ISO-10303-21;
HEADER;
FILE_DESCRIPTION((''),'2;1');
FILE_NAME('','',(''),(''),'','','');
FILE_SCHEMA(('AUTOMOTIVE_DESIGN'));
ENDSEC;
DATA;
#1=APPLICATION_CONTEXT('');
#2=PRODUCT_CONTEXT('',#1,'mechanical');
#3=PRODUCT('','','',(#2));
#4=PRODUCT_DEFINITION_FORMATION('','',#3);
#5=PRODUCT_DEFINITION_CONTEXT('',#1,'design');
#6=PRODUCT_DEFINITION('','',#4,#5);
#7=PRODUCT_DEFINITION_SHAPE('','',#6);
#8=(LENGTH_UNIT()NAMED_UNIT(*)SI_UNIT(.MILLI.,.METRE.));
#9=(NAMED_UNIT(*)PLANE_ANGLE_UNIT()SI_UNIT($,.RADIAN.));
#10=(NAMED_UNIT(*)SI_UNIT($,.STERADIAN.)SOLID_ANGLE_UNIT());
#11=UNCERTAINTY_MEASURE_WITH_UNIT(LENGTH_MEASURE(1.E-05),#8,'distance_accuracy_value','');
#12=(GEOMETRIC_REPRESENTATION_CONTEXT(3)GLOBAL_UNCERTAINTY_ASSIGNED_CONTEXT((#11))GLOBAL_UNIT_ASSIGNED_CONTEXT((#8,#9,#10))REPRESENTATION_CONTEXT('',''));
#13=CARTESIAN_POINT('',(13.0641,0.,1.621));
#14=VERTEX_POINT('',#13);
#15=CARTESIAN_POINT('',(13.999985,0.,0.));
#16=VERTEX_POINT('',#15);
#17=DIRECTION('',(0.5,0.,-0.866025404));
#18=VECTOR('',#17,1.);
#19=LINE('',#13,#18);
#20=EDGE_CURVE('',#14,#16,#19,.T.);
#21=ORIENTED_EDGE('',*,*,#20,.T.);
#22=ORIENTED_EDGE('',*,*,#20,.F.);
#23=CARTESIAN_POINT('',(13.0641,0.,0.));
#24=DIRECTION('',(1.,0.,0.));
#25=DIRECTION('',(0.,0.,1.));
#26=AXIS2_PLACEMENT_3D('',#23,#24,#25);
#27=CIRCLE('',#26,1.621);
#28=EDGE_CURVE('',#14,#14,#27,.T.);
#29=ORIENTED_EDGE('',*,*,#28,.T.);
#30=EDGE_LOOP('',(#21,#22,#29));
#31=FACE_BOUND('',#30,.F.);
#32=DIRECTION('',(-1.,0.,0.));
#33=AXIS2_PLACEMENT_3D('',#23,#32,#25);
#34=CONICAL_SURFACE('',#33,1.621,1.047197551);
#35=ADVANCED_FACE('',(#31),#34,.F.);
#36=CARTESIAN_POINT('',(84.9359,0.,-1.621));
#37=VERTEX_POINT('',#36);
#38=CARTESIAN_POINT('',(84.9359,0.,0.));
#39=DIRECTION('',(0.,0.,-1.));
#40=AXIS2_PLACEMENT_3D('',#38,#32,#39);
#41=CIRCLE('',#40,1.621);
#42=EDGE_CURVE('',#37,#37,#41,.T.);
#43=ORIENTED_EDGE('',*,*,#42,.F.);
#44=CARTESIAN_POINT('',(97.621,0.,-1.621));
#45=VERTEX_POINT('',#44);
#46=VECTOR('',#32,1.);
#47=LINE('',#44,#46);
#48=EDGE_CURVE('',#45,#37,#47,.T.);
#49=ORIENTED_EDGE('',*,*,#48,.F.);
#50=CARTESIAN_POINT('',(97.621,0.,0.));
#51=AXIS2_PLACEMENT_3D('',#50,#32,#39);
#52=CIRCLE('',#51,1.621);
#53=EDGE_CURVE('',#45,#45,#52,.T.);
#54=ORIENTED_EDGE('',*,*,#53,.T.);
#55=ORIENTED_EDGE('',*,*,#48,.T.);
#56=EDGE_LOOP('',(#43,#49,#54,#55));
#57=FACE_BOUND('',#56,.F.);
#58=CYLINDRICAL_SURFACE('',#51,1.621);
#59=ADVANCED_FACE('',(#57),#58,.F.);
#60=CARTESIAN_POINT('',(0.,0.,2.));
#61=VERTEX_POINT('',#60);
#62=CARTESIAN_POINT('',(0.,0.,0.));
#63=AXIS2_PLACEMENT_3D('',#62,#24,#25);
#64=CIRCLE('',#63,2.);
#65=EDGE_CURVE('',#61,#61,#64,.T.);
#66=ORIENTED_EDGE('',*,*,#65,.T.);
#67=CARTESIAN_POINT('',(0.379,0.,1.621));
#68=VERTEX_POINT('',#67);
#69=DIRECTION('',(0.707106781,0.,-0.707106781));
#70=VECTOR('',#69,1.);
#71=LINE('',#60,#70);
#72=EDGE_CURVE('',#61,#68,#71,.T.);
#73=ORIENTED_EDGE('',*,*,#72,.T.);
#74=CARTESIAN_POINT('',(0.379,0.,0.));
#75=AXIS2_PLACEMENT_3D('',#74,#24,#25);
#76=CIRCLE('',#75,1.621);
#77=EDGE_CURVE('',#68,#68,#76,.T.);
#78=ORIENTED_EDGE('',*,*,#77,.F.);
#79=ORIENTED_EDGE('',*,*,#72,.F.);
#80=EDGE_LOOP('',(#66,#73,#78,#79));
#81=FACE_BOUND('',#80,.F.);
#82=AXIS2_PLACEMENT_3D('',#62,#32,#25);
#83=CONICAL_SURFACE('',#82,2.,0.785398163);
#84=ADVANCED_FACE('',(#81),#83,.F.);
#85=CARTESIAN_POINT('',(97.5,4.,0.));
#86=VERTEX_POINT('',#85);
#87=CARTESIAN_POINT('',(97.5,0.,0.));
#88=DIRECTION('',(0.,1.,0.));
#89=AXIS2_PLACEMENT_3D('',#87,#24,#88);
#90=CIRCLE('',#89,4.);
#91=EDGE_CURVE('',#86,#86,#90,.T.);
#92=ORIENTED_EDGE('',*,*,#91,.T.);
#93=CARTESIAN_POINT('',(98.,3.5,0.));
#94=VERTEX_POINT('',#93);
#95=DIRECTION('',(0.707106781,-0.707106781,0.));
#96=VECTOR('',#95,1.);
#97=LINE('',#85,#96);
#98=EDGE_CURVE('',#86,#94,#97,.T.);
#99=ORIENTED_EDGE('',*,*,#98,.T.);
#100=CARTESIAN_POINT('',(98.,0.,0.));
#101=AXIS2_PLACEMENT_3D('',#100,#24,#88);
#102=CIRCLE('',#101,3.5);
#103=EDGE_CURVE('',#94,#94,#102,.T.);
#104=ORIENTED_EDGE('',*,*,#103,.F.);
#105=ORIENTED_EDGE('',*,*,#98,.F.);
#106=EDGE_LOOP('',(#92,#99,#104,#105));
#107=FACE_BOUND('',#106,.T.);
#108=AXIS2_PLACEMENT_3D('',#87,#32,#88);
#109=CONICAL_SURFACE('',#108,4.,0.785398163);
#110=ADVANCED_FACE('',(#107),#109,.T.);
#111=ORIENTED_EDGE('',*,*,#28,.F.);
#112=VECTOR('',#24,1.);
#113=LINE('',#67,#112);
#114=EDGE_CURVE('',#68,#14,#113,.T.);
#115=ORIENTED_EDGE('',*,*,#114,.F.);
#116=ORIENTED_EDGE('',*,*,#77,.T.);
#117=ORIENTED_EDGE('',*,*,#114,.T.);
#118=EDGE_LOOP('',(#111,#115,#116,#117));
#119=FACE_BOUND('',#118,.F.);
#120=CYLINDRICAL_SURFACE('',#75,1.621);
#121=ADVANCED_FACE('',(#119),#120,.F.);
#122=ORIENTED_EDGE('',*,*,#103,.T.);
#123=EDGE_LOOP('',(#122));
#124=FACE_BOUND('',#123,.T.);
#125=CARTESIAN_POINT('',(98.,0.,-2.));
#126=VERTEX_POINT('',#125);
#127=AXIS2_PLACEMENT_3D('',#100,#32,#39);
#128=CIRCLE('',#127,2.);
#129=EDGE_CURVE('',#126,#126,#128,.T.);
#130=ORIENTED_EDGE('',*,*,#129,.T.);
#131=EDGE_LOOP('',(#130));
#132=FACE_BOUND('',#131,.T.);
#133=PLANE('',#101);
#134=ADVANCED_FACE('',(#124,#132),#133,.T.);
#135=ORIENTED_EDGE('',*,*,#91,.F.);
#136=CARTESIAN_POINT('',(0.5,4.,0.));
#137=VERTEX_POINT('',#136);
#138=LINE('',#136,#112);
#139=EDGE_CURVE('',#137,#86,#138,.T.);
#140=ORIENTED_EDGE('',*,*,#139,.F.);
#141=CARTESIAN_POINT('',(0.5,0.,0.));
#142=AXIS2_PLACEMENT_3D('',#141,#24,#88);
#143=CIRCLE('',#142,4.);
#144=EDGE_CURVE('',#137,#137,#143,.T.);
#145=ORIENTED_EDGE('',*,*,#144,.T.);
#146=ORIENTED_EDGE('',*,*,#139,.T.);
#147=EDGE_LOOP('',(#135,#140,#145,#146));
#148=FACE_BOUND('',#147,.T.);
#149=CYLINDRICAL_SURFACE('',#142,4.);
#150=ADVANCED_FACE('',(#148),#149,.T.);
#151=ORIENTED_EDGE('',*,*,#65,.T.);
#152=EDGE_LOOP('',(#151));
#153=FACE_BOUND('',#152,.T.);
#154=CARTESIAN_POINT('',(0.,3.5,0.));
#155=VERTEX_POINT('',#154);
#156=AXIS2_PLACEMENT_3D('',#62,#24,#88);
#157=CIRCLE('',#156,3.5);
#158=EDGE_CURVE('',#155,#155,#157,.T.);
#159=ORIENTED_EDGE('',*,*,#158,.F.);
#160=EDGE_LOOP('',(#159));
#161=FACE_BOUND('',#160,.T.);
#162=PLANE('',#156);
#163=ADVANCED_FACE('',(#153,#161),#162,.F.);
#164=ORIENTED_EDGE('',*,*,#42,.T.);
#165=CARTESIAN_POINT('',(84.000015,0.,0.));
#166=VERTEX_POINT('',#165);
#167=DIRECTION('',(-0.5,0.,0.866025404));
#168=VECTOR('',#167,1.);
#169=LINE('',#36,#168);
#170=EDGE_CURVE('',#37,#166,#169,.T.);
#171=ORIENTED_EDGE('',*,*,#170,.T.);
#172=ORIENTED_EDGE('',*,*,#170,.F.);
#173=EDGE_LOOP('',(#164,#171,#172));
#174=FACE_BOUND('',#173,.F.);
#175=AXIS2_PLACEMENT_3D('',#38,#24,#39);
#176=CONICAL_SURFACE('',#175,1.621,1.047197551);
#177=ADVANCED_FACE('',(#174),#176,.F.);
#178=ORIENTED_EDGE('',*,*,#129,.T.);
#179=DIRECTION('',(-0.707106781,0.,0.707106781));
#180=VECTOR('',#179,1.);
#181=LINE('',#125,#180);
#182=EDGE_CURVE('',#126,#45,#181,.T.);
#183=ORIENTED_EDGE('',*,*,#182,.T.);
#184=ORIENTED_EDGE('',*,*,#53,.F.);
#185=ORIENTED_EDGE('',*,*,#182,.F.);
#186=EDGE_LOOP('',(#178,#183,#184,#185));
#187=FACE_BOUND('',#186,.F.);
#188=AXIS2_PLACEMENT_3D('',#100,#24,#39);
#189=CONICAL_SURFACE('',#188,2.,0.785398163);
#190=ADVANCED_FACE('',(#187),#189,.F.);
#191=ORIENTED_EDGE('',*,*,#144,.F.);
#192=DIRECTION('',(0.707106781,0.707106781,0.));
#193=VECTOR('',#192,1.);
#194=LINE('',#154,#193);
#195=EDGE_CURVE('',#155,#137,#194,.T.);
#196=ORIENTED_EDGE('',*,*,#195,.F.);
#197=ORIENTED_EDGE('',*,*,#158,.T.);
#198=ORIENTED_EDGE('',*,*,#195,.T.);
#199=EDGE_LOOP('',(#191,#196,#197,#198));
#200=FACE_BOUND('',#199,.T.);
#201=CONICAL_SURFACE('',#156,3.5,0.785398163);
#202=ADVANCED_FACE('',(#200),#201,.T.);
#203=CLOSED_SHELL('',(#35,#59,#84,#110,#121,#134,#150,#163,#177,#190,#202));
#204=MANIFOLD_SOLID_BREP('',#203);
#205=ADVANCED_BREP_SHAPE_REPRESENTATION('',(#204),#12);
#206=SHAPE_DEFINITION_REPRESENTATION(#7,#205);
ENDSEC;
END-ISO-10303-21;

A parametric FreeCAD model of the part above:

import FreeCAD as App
import Part
import Sketcher

V = App.Vector
Q = App.Units.Quantity

doc = App.newDocument("Part")
body = doc.addObject("PartDesign::Body", "Body")

# Sketch on XY plane
sketch1 = body.newObject("Sketcher::SketchObject", "Sketch")
sketch1.AttachmentSupport = (doc.getObject("XY_Plane"), [""])
sketch1.MapMode = "FlatFace"
sketch1.addGeometry([
    Part.LineSegment(V(0, 0, 0), V(98, 0, 0)),  # 0
    Part.LineSegment(V(98, 0, 0), V(98, 3.5, 0)),  # 1
    Part.LineSegment(V(98, 3.5, 0), V(97.5, 4, 0)),  # 2
    Part.LineSegment(V(97.5, 4, 0), V(0.5, 4, 0)),  # 3
    Part.LineSegment(V(0.5, 4, 0), V(0, 3.5, 0)),  # 4
    Part.LineSegment(V(0, 3.5, 0), V(0, 0, 0)),  # 5
], False)
sketch1.addConstraint([
    Sketcher.Constraint("Coincident", 0, 2, 1, 1),
    Sketcher.Constraint("Coincident", 1, 2, 2, 1),
    Sketcher.Constraint("Coincident", 2, 2, 3, 1),
    Sketcher.Constraint("Coincident", 3, 2, 4, 1),
    Sketcher.Constraint("Coincident", 4, 2, 5, 1),
    Sketcher.Constraint("Coincident", 5, 2, 0, 1),
    Sketcher.Constraint("Horizontal", 0),
    Sketcher.Constraint("Vertical", 1),
    Sketcher.Constraint("Horizontal", 3),
    Sketcher.Constraint("Vertical", 5),
    Sketcher.Constraint("Coincident", 5, 2, -1, 1),
    Sketcher.Constraint("Perpendicular", 2, 4),
    Sketcher.Constraint("Horizontal", 1, 2, 4, 2),
    Sketcher.Constraint("Equal", 2, 4),
    Sketcher.Constraint("DistanceX", 0, 1, 0, 2, Q("98 mm")),
    Sketcher.Constraint("DistanceX", 3, 2, 3, 1, Q("97 mm")),
    Sketcher.Constraint("DistanceY", 1, 1, 1, 2, Q("3.5 mm")),
])
revolution = body.newObject("PartDesign::Revolution", "Revolution")
revolution.Profile = sketch1
revolution.ReferenceAxis = (sketch1, ["H_Axis"])
revolution.Angle = 360

# Sketch on YZ plane
sketch2 = body.newObject("Sketcher::SketchObject", "Sketch001")
sketch2.AttachmentSupport = (doc.getObject("YZ_Plane"), [""])
sketch2.MapMode = "FlatFace"
sketch2.addGeometry(Part.Circle(V(0, 0, 0), V(0, 0, 1), 1.6), False)
sketch2.addConstraint([
    Sketcher.Constraint("Coincident", 0, 3, -1, 1),
    Sketcher.Constraint("Diameter", 0, Q("3.242 mm")),
])
doc.recompute()
hole = body.newObject("PartDesign::Hole", "Hole")
hole.Profile = sketch2
hole.ThreadType = "None"
hole.Diameter = 3.242
hole.DepthType = "Dimension"
hole.Depth = 13.0641
hole.DrillPoint = "Angled"
hole.DrillPointAngle = 120
hole.HoleCutType = "Countersink"
hole.HoleCutDiameter = 4
hole.HoleCutCountersinkAngle = 90
hole.Reversed = True

# Sketch on YZ plane
sketch3 = body.newObject("Sketcher::SketchObject", "Sketch002")
sketch3.AttachmentSupport = (doc.getObject("YZ_Plane"), [""])
sketch3.MapMode = "FlatFace"
sketch3.AttachmentOffset = App.Placement(V(0, 0, 98), App.Rotation())
sketch3.addGeometry(Part.Circle(V(0, 0, 0), V(0, 0, 1), 1.6), False)
sketch3.addConstraint([
    Sketcher.Constraint("Coincident", 0, 3, -1, 1),
    Sketcher.Constraint("Diameter", 0, Q("3.242 mm")),
])
doc.recompute()
hole2 = body.newObject("PartDesign::Hole", "Hole001")
hole2.Profile = sketch3
hole2.ThreadType = "None"
hole2.Diameter = 3.242
hole2.DepthType = "Dimension"
hole2.Depth = 13.0641
hole2.DrillPoint = "Angled"
hole2.DrillPointAngle = 120
hole2.HoleCutType = "Countersink"
hole2.HoleCutDiameter = 4
hole2.HoleCutCountersinkAngle = 90

doc.recompute()
